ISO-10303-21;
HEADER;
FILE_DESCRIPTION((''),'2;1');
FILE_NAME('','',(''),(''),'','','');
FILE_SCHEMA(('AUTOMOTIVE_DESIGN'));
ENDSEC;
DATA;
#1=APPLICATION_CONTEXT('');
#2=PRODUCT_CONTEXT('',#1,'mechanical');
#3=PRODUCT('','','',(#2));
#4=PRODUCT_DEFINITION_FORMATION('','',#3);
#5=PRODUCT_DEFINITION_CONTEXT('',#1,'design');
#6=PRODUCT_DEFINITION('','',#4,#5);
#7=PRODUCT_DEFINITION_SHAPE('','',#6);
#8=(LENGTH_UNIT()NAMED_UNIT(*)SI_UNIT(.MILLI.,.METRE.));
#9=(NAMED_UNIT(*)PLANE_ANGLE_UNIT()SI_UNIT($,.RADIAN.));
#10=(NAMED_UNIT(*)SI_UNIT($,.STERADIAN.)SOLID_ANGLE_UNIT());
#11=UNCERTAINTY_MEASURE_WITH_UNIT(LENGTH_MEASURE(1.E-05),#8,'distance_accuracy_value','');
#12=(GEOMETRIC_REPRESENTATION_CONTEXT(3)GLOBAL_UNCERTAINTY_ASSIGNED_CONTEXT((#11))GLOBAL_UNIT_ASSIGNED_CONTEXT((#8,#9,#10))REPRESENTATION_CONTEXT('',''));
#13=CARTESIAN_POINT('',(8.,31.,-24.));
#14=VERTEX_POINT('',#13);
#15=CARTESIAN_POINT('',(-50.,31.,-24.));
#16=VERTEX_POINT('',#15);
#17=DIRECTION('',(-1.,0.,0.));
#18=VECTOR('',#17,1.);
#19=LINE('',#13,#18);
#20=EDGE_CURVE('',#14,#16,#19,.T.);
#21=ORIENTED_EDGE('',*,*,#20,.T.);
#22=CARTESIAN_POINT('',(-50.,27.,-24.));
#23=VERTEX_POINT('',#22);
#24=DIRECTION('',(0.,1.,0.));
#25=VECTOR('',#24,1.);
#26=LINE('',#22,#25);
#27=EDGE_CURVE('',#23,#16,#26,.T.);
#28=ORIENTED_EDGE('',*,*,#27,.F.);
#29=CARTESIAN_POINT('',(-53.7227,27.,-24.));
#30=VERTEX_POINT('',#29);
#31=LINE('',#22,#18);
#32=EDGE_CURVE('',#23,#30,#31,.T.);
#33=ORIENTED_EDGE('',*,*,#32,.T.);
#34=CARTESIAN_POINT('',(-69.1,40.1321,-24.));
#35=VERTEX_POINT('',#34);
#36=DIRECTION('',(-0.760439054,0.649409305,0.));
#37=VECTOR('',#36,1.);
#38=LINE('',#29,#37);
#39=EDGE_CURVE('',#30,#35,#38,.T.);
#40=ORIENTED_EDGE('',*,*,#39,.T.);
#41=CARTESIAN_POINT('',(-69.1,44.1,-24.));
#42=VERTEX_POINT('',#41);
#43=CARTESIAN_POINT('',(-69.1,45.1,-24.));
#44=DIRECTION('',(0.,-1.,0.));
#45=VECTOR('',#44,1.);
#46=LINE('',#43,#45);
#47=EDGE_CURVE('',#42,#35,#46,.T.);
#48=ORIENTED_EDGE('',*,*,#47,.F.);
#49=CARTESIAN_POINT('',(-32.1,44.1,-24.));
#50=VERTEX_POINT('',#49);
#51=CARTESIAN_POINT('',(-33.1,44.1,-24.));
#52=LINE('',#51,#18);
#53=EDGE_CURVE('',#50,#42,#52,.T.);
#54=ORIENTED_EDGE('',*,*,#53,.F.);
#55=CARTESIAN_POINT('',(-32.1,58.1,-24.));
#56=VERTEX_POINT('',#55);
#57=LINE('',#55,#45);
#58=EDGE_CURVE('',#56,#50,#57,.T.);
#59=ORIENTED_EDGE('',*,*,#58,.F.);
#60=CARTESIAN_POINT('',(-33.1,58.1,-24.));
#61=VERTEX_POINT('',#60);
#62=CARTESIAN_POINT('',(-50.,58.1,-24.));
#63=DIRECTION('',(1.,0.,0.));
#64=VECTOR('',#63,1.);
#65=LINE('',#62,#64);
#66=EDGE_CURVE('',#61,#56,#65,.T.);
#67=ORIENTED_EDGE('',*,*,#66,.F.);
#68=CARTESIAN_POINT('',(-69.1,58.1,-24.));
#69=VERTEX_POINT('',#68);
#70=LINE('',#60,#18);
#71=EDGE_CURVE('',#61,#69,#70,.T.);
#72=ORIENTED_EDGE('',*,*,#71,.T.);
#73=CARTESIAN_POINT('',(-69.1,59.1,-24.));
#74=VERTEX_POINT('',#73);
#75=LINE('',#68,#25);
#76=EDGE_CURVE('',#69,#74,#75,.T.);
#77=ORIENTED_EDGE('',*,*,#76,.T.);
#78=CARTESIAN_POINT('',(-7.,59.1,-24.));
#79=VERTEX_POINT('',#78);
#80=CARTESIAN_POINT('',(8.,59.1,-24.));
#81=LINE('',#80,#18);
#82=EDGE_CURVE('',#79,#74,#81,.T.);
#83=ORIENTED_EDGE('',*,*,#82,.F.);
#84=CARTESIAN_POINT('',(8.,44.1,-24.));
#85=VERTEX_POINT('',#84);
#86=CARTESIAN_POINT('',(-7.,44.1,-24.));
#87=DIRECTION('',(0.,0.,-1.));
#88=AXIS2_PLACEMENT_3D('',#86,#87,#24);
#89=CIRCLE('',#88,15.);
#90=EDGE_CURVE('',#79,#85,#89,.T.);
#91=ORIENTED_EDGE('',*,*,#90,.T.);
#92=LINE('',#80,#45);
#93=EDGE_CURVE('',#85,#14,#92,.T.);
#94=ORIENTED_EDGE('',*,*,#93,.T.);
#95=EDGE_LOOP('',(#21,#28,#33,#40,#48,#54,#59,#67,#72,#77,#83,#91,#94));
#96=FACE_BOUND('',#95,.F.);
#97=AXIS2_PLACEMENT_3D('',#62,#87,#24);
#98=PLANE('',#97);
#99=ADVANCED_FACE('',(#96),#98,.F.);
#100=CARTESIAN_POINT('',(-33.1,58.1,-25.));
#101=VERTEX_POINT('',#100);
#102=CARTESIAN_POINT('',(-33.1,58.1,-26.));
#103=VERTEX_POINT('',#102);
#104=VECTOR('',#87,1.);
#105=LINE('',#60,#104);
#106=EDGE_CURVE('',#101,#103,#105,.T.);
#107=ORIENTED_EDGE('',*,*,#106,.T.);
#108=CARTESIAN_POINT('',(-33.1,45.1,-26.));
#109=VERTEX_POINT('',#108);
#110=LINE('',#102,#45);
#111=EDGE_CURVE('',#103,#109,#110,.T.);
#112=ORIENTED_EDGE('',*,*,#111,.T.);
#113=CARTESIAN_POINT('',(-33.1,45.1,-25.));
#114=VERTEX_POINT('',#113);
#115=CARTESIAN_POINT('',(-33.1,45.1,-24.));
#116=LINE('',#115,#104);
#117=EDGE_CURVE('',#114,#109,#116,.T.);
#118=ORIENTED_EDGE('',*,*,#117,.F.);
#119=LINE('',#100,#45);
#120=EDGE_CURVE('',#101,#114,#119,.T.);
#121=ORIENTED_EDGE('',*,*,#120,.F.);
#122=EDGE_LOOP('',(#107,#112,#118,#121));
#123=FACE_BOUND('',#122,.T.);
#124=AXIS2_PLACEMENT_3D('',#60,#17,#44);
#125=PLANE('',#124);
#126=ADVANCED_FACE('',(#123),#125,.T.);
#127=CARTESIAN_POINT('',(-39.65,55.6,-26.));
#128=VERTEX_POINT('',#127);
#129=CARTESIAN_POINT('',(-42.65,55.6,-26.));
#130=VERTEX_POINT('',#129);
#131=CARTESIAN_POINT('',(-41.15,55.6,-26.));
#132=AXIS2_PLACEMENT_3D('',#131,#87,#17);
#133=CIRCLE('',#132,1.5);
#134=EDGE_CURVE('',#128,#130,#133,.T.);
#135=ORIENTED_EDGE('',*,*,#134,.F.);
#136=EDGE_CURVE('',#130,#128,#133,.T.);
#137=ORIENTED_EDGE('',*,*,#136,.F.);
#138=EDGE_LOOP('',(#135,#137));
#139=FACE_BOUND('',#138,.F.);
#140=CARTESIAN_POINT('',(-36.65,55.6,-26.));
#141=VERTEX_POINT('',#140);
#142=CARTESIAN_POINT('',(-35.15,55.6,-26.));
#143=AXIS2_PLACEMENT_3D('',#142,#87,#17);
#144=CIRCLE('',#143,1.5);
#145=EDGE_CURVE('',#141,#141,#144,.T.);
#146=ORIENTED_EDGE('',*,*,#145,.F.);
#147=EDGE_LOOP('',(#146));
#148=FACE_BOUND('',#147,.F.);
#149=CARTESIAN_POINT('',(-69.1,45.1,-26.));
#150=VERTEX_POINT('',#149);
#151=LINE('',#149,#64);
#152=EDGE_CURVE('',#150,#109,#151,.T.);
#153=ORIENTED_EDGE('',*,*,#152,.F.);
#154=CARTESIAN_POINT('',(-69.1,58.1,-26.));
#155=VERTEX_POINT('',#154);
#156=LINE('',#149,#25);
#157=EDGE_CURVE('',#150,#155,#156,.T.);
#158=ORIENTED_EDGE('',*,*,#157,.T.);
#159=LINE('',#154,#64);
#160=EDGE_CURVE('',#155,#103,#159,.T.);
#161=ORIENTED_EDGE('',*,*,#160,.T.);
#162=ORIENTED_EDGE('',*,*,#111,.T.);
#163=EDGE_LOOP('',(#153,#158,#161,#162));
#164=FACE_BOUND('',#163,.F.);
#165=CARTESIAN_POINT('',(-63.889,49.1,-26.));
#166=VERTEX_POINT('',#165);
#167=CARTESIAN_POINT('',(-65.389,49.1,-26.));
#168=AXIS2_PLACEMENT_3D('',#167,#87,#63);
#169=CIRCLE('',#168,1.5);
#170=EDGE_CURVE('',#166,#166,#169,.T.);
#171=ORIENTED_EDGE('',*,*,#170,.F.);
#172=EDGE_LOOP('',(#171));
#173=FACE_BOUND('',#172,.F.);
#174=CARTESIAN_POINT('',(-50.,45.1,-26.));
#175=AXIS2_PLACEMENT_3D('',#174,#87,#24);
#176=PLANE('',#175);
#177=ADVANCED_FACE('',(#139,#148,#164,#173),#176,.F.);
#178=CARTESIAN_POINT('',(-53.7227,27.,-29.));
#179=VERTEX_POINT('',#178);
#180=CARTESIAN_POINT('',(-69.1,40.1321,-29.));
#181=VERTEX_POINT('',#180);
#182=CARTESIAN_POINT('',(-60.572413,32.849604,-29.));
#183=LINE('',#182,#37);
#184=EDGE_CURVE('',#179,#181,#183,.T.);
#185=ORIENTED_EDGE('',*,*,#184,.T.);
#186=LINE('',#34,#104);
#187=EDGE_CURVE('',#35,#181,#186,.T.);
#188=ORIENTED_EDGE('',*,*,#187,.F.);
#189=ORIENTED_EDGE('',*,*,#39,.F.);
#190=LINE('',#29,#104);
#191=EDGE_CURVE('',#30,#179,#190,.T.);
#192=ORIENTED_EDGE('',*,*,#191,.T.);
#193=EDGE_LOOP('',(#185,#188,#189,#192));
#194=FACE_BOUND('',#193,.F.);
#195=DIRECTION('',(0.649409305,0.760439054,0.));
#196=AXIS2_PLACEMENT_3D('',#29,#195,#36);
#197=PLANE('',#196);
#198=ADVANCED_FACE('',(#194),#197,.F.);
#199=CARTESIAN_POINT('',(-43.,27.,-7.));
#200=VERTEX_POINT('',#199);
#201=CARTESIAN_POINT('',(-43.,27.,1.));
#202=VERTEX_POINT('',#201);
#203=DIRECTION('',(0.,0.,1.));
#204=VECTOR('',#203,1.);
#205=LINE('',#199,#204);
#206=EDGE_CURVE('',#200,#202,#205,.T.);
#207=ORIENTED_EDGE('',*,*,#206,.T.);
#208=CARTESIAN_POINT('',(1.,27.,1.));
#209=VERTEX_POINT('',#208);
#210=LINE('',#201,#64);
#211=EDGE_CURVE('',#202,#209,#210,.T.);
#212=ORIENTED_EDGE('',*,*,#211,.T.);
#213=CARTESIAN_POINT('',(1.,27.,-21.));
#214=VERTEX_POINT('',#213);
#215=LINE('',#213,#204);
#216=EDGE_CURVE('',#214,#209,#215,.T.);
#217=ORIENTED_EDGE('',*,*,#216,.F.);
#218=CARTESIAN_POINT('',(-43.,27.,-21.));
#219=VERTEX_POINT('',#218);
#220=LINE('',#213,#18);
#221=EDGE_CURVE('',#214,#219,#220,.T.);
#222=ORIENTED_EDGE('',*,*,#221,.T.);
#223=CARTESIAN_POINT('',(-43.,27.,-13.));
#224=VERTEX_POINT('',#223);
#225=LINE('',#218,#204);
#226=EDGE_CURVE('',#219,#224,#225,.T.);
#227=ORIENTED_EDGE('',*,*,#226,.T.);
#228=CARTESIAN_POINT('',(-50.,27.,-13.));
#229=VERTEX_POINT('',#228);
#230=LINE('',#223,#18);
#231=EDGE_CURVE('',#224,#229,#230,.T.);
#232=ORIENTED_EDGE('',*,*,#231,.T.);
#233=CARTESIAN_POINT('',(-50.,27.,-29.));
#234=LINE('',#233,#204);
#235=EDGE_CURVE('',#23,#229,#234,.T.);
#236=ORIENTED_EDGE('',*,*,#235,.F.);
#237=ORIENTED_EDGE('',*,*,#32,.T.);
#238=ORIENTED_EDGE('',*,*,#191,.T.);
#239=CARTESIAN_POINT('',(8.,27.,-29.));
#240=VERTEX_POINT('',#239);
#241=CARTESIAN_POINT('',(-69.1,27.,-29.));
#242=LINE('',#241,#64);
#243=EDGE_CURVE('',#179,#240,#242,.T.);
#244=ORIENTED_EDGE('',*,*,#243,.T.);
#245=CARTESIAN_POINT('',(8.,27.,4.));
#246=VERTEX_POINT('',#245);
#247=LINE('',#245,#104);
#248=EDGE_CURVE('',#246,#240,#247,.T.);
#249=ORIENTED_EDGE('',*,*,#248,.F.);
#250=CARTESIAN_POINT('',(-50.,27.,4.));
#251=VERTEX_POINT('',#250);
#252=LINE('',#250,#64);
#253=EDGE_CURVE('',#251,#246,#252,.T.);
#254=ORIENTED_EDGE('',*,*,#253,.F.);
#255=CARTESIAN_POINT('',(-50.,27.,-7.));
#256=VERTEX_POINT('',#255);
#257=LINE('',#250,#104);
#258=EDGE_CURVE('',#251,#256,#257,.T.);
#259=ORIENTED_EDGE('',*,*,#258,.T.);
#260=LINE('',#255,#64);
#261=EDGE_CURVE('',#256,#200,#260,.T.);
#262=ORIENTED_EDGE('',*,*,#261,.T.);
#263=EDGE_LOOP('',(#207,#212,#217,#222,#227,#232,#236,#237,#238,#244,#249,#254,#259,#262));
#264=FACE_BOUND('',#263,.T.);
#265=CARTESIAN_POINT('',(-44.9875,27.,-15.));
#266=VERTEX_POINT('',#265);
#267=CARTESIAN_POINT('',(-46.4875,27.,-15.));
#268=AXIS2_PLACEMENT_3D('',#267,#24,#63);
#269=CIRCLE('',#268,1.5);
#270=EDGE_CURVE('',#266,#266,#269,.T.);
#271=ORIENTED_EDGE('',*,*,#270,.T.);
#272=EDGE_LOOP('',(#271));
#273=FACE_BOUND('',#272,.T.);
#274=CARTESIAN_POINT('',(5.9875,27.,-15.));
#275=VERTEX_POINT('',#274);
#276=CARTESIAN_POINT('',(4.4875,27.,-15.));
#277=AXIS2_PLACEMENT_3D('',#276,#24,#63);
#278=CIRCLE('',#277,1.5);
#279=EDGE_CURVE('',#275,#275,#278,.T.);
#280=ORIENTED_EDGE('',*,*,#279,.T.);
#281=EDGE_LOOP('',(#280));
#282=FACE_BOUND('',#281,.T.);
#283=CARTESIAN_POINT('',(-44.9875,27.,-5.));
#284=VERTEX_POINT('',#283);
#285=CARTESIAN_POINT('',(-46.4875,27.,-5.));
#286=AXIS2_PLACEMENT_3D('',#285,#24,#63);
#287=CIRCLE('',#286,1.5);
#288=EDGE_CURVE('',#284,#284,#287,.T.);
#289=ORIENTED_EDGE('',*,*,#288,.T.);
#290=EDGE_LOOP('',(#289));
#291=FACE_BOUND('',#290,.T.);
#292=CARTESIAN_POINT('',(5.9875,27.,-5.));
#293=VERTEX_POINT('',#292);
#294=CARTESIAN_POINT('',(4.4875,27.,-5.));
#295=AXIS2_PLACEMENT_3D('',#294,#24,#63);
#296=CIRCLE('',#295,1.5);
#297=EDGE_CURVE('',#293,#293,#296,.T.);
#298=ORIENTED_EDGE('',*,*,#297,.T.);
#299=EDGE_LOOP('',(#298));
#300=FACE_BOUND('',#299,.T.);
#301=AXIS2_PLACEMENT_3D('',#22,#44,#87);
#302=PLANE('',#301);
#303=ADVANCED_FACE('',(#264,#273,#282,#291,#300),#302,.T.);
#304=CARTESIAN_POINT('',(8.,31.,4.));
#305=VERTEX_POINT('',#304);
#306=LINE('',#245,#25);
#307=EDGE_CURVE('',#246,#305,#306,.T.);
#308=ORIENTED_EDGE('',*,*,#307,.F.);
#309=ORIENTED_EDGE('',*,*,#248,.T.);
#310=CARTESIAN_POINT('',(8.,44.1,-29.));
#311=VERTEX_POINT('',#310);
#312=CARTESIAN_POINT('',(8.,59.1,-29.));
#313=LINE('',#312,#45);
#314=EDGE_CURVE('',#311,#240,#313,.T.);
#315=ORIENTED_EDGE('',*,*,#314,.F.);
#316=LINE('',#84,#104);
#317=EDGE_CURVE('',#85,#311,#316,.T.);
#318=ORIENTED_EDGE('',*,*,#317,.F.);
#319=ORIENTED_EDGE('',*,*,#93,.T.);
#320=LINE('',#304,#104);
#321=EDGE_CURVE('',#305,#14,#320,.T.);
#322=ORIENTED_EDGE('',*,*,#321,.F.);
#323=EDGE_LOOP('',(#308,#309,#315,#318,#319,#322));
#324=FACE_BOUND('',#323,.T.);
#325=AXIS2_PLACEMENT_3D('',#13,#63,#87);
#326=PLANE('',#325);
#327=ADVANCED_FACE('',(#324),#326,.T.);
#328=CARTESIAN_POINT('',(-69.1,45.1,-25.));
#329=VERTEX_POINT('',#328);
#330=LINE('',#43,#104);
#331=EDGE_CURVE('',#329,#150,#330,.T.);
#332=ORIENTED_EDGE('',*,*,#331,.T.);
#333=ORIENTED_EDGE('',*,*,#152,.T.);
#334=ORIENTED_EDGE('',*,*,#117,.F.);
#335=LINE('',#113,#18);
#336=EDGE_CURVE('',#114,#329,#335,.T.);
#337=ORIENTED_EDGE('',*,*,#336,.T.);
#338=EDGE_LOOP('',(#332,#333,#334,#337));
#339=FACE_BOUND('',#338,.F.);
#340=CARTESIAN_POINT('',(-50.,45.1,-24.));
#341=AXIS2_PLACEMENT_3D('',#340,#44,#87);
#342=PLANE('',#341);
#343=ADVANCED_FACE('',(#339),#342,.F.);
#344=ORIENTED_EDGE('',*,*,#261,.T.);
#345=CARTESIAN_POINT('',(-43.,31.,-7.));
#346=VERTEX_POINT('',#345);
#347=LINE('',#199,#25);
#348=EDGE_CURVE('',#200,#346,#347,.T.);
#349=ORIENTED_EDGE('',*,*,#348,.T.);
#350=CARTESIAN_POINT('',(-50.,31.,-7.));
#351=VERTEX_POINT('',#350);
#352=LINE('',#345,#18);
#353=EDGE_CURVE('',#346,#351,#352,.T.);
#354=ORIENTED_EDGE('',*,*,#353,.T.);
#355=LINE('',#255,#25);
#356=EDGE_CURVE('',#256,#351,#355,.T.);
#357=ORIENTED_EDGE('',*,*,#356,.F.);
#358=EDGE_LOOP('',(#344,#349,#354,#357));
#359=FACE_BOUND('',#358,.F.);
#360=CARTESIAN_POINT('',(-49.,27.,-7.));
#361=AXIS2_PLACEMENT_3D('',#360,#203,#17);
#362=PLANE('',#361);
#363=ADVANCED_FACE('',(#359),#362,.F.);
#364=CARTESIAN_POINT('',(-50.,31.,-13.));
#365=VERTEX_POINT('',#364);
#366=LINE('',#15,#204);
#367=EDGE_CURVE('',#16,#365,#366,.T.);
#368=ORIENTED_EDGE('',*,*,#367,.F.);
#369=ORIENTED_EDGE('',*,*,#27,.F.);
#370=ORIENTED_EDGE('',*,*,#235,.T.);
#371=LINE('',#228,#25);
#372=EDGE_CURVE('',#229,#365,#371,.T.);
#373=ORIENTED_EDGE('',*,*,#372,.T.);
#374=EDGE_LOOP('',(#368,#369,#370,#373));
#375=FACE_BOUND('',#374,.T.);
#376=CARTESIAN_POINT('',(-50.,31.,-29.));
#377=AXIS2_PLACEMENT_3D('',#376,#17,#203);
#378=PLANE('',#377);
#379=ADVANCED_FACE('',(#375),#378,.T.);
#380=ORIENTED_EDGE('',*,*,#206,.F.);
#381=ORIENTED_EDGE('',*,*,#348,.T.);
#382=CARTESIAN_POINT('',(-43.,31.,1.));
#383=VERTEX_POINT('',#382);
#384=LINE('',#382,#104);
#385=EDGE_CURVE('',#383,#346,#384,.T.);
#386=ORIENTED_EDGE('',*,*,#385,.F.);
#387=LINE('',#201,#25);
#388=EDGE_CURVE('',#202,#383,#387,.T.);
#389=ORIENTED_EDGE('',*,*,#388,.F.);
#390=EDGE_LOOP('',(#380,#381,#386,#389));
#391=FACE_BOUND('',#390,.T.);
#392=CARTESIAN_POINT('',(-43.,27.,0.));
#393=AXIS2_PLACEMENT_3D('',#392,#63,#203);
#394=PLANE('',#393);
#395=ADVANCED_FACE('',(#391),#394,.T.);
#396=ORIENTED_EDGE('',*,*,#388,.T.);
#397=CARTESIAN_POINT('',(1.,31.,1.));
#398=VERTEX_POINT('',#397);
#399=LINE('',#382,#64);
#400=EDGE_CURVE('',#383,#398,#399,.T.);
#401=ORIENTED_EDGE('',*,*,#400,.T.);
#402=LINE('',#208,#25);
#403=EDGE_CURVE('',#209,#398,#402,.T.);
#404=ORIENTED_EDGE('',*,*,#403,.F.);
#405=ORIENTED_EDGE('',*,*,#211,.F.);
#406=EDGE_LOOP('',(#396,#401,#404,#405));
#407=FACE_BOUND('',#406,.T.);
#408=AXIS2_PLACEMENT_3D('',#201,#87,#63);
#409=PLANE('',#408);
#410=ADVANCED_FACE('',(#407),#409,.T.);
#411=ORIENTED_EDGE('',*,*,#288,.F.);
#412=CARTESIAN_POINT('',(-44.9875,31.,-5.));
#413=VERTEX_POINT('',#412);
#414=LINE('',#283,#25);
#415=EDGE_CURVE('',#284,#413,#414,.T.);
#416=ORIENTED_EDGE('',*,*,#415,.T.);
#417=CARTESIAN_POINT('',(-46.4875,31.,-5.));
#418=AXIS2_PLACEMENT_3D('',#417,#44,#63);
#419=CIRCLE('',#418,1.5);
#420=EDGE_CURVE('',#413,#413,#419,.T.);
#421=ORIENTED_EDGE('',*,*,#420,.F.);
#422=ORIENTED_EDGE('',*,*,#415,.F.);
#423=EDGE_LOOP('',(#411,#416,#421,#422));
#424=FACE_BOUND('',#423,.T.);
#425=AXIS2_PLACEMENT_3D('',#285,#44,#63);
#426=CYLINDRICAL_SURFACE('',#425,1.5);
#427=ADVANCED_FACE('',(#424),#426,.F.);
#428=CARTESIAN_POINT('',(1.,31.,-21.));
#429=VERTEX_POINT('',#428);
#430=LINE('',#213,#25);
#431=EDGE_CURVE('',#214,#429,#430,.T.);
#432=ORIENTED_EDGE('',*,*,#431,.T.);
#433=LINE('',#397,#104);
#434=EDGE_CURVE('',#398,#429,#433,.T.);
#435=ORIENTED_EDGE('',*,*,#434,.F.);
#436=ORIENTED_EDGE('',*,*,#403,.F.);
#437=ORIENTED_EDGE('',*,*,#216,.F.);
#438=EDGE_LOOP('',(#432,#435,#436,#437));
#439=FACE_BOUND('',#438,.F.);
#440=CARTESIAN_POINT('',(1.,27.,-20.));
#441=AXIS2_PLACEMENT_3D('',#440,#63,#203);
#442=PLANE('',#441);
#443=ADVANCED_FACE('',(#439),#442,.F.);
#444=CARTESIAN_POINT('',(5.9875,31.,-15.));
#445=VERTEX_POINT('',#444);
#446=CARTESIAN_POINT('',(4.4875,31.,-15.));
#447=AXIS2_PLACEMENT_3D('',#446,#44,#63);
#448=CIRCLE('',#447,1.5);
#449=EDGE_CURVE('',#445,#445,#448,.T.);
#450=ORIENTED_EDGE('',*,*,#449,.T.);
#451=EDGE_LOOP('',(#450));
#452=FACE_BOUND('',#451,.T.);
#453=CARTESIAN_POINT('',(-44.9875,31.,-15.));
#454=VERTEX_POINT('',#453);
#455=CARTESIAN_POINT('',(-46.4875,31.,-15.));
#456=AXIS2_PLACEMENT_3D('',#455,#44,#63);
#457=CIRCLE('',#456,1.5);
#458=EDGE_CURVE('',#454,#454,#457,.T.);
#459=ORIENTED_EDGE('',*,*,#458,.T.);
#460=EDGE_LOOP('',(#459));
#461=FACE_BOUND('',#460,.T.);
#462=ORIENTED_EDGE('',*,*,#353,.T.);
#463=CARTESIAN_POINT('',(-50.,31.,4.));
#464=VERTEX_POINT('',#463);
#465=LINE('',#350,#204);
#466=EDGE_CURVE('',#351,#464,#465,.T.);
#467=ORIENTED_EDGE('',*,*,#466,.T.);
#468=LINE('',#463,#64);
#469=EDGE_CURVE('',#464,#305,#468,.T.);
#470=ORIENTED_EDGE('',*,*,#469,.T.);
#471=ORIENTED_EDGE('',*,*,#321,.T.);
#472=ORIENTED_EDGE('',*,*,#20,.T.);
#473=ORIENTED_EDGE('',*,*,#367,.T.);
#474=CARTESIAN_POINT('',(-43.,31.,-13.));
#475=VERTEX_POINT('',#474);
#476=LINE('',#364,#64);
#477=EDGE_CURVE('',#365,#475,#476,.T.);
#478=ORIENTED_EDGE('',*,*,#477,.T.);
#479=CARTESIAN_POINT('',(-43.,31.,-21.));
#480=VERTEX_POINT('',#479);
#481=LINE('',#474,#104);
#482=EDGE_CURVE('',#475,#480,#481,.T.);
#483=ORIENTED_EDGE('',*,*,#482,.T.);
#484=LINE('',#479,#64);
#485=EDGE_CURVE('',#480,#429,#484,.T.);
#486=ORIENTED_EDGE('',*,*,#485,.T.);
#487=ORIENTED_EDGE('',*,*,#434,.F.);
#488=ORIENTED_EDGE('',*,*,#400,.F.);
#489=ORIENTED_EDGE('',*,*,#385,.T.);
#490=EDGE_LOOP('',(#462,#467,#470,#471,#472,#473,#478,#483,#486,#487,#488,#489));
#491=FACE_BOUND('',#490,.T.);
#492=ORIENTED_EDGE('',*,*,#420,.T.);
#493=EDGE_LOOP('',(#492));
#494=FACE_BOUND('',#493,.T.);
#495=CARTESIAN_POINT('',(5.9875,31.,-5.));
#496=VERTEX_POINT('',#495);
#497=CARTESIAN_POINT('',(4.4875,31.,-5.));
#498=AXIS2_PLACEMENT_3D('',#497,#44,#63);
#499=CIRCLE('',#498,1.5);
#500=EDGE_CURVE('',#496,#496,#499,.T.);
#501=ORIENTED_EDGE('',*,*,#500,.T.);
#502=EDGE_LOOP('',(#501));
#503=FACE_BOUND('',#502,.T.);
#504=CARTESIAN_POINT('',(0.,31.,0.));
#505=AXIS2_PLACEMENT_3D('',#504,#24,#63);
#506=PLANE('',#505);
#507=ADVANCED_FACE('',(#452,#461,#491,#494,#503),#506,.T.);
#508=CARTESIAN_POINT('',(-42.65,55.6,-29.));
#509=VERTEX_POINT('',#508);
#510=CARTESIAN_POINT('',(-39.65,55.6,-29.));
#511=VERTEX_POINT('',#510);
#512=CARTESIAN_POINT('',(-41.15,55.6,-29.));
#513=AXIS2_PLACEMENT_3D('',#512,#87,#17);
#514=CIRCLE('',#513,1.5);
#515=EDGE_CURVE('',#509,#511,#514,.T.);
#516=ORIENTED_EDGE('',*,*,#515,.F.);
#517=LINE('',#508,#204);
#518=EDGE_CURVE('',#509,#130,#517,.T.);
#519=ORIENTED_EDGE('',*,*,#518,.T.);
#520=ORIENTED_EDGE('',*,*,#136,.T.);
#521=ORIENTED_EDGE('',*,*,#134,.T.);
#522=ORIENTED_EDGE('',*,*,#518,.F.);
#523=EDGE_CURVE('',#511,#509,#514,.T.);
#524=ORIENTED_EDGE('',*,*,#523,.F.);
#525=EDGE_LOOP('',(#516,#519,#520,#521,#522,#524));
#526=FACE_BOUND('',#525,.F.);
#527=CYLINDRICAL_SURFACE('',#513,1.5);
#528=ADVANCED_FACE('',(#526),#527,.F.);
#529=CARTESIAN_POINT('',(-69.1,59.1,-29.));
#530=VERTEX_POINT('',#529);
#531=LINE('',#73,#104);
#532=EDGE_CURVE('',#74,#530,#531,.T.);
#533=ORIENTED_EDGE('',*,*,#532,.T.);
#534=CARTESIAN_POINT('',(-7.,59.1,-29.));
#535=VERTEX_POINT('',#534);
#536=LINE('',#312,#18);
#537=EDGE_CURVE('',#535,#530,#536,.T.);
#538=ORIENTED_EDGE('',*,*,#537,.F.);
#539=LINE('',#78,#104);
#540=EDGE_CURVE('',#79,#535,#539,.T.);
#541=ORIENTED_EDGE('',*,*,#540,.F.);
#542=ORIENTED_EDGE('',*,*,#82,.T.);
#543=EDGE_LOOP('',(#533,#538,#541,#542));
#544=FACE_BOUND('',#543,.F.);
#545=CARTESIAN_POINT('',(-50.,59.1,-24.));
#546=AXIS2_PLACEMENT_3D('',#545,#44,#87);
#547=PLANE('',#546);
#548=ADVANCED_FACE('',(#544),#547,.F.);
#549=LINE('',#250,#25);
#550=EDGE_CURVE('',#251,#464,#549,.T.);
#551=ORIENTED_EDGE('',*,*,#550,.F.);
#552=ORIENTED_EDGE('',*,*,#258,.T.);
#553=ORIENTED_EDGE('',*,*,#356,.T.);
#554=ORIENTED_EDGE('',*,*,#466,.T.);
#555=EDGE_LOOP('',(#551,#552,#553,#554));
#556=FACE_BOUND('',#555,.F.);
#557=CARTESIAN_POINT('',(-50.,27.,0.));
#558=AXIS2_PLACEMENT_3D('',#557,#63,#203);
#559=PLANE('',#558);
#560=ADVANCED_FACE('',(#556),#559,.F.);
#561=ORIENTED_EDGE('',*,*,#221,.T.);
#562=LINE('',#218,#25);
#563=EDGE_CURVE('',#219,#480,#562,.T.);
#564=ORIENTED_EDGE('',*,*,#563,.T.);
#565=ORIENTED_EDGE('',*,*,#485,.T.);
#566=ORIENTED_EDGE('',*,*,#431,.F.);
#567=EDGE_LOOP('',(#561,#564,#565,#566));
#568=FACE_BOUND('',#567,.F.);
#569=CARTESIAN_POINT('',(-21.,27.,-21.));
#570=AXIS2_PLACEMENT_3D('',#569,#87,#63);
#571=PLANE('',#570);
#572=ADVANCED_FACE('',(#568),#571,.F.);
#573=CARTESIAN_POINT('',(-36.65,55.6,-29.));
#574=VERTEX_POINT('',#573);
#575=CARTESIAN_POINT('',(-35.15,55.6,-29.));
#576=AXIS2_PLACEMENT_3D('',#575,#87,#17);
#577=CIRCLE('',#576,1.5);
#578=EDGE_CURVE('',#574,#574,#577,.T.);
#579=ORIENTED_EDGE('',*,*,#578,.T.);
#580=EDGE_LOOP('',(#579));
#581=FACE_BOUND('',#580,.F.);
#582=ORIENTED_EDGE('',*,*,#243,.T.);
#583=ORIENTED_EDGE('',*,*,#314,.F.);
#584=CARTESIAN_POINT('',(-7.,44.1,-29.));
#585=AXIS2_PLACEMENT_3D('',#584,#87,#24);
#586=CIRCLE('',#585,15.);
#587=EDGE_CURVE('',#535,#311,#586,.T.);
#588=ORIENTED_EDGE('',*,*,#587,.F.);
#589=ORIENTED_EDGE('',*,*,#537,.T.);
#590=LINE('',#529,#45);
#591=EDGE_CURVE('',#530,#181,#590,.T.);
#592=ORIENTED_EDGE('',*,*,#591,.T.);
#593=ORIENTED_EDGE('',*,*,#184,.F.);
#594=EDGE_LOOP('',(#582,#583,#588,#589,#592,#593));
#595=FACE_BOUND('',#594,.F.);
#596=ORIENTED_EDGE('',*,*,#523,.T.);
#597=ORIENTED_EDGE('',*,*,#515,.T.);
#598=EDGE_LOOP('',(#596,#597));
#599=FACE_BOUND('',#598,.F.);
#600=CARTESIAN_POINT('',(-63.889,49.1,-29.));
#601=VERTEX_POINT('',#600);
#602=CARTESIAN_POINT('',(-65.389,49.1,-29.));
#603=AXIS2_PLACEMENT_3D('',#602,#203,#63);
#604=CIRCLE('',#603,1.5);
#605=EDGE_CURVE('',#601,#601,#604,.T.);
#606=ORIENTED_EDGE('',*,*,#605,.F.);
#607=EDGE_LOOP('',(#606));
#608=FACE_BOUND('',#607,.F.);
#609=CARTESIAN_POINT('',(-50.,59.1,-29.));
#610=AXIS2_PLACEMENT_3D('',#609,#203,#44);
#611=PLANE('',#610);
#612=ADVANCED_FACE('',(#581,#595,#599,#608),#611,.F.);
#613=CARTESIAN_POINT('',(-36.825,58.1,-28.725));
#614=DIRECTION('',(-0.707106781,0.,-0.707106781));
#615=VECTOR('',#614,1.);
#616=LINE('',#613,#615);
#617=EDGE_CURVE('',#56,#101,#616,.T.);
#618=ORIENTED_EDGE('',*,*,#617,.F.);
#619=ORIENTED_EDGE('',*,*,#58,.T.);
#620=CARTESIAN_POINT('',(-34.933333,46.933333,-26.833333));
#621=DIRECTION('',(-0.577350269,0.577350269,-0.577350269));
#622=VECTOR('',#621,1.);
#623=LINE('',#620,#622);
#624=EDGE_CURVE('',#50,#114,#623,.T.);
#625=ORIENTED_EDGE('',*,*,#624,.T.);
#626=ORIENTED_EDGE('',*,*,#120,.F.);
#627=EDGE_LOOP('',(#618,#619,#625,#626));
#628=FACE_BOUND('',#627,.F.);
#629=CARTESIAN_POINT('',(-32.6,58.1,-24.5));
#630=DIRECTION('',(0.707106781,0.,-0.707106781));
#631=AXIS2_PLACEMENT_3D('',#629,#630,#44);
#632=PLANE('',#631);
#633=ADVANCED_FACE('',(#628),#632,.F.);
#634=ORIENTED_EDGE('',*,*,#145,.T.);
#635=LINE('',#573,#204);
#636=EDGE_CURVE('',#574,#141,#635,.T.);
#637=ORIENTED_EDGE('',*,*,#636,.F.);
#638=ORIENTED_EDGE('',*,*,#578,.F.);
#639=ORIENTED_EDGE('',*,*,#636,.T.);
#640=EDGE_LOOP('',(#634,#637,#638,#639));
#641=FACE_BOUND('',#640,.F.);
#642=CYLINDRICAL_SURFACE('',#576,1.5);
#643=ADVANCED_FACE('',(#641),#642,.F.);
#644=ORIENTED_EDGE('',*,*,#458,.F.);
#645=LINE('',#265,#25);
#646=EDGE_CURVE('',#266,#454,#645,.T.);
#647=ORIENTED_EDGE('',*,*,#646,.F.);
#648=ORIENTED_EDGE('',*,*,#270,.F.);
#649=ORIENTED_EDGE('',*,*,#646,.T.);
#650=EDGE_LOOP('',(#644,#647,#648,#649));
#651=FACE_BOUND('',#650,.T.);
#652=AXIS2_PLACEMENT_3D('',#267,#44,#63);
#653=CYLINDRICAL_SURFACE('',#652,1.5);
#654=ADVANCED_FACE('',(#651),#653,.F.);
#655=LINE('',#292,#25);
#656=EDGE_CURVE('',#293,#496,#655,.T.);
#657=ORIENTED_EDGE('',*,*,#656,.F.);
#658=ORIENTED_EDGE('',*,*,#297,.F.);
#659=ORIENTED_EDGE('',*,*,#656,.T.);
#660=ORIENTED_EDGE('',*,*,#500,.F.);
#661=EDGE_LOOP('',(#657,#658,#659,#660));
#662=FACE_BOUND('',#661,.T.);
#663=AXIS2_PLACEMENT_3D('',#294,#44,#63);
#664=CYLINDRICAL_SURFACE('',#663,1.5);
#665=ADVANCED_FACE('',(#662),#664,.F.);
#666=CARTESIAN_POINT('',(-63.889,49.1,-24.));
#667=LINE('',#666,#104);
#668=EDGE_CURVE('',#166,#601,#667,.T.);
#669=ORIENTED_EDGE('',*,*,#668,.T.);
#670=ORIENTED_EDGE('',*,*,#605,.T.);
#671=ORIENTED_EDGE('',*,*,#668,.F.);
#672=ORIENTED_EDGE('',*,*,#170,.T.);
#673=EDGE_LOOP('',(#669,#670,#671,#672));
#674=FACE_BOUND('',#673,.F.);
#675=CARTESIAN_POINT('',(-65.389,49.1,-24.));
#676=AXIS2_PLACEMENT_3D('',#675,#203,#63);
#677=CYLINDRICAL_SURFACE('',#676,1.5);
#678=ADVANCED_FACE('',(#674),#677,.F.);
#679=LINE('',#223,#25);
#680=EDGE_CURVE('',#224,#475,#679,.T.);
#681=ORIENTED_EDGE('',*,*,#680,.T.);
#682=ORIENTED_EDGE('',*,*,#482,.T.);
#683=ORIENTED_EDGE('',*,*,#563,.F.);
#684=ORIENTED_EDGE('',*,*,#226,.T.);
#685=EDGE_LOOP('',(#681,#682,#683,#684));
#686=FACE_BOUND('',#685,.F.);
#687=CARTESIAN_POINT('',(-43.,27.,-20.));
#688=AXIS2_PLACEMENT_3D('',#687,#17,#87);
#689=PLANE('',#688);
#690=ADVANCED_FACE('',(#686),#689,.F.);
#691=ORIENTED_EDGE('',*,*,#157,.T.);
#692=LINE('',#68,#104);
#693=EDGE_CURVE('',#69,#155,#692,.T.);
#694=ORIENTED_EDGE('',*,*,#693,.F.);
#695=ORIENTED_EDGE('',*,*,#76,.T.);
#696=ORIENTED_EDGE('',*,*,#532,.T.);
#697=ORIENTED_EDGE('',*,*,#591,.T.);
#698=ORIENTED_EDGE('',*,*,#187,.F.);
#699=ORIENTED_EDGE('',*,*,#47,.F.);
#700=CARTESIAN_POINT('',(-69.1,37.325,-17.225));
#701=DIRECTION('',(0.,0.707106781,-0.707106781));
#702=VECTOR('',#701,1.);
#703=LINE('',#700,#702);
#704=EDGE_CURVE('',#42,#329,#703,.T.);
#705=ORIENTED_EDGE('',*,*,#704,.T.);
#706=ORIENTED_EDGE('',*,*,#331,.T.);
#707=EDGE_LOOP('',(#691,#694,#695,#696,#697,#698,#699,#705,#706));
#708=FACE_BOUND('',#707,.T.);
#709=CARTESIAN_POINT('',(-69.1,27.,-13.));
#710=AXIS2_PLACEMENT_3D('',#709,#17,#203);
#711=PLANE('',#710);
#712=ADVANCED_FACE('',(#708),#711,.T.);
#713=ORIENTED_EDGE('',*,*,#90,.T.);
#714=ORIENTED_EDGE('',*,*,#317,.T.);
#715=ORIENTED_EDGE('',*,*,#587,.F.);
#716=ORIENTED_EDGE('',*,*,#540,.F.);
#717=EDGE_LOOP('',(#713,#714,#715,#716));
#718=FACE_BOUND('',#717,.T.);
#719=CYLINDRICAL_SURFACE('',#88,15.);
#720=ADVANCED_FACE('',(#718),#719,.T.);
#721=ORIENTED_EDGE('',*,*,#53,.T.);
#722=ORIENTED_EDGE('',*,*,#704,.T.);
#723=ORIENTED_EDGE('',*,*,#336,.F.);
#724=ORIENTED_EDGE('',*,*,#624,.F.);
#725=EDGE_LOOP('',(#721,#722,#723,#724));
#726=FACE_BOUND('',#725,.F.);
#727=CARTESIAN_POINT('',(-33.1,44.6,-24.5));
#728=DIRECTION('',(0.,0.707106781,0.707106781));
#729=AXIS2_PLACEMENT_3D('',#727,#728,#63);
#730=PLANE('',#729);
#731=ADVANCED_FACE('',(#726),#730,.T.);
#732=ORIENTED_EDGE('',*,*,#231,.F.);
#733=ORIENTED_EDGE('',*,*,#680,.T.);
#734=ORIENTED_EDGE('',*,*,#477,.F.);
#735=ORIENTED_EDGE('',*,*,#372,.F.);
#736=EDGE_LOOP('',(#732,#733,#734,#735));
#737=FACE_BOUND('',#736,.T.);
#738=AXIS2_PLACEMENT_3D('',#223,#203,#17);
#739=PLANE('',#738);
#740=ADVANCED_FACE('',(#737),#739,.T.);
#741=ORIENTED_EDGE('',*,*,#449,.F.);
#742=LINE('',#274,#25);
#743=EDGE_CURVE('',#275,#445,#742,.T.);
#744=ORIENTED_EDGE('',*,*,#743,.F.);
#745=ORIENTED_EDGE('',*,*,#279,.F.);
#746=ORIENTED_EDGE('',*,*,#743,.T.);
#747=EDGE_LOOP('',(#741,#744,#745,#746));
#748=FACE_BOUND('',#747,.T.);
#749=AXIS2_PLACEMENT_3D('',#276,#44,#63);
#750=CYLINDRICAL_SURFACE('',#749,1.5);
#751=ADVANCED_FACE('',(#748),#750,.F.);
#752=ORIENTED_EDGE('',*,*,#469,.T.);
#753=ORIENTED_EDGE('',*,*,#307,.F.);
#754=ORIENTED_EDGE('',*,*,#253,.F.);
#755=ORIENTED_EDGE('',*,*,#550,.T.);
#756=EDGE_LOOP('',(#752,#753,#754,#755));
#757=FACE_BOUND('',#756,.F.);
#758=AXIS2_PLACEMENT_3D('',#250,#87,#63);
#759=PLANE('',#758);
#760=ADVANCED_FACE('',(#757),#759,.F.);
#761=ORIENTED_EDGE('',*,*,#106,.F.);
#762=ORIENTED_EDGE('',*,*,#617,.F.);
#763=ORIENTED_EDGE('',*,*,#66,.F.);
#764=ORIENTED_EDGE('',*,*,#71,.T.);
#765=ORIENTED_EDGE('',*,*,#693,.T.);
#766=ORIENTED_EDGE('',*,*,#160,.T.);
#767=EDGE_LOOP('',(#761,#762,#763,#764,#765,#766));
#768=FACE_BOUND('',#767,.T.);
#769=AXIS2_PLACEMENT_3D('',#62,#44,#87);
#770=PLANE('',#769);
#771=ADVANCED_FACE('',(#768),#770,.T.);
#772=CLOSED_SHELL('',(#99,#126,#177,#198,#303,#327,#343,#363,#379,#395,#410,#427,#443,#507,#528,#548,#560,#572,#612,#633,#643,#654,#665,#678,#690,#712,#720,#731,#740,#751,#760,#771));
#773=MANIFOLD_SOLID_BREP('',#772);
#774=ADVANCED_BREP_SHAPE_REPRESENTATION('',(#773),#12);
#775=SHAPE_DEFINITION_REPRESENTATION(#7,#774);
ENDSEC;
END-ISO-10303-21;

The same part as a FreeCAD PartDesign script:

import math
import FreeCAD as App
import Part
import Sketcher

V = App.Vector
Q = App.Units.Quantity


def edges_at(feature, points):
    """Names of the edges that pass closest to the given points."""
    edges = feature.Shape.Edges
    near = lambda p: min(range(len(edges)), key=lambda i: edges[i].distToShape(Part.Vertex(*p))[0])
    return sorted({f"Edge{near(p) + 1}" for p in points})

doc = App.newDocument("Part")
body = doc.addObject("PartDesign::Body", "Body")
body.AllowCompound = True

# Sketch on XZ plane
sketch1 = doc.addObject("Sketcher::SketchObject", "Sketch")
body.addObject(sketch1)
sketch1.AttachmentSupport = (doc.XZ_Plane, [""])
sketch1.MapMode = "FlatFace"
sketch1.AttachmentOffset = App.Placement(V(0, 0, -27), App.Rotation())
sketch1.addGeometry(Part.LineSegment(V(1, 1, 0), V(-43, 1, 0)), False)
sketch1.addGeometry(Part.LineSegment(V(-43, 1, 0), V(-43, -7, 0)), False)
sketch1.addGeometry(Part.LineSegment(V(-43, -7, 0), V(-50, -7, 0)), False)
sketch1.addGeometry(Part.LineSegment(V(-50, -7, 0), V(-50, 4, 0)), False)
sketch1.addGeometry(Part.LineSegment(V(-50, 4, 0), V(8, 4, 0)), False)
sketch1.addGeometry(Part.LineSegment(V(8, 4, 0), V(8, -24, 0)), False)
sketch1.addGeometry(Part.LineSegment(V(8, -24, 0), V(-50, -24, 0)), False)
sketch1.addGeometry(Part.LineSegment(V(-50, -24, 0), V(-50, -13, 0)), False)
sketch1.addGeometry(Part.LineSegment(V(-50, -13, 0), V(-43, -13, 0)), False)
sketch1.addGeometry(Part.LineSegment(V(-43, -13, 0), V(-43, -21, 0)), False)
sketch1.addGeometry(Part.LineSegment(V(-43, -21, 0), V(1, -21, 0)), False)
sketch1.addGeometry(Part.LineSegment(V(1, -21, 0), V(1, 1, 0)), False)
sketch1.addGeometry(Part.Circle(V(4.5, -15, 0), V(0, 0, 1), 1.5), False)
sketch1.addGeometry(Part.Circle(V(4.5, -5, 0), V(0, 0, 1), 1.5), False)
sketch1.addGeometry(Part.Circle(V(-46.5, -15, 0), V(0, 0, 1), 1.5), False)
sketch1.addGeometry(Part.Circle(V(-46.5, -5, 0), V(0, 0, 1), 1.5), False)
sketch1.addConstraint(Sketcher.Constraint("Coincident", 0, 2, 1, 1))
sketch1.addConstraint(Sketcher.Constraint("Coincident", 1, 2, 2, 1))
sketch1.addConstraint(Sketcher.Constraint("Coincident", 2, 2, 3, 1))
sketch1.addConstraint(Sketcher.Constraint("Coincident", 3, 2, 4, 1))
sketch1.addConstraint(Sketcher.Constraint("Coincident", 4, 2, 5, 1))
sketch1.addConstraint(Sketcher.Constraint("Coincident", 5, 2, 6, 1))
sketch1.addConstraint(Sketcher.Constraint("Coincident", 6, 2, 7, 1))
sketch1.addConstraint(Sketcher.Constraint("Coincident", 7, 2, 8, 1))
sketch1.addConstraint(Sketcher.Constraint("Coincident", 8, 2, 9, 1))
sketch1.addConstraint(Sketcher.Constraint("Coincident", 9, 2, 10, 1))
sketch1.addConstraint(Sketcher.Constraint("Coincident", 10, 2, 11, 1))
sketch1.addConstraint(Sketcher.Constraint("Coincident", 11, 2, 0, 1))
sketch1.addConstraint(Sketcher.Constraint("Horizontal", 0))
sketch1.addConstraint(Sketcher.Constraint("Vertical", 1))
sketch1.addConstraint(Sketcher.Constraint("Horizontal", 2))
sketch1.addConstraint(Sketcher.Constraint("Vertical", 3))
sketch1.addConstraint(Sketcher.Constraint("Horizontal", 4))
sketch1.addConstraint(Sketcher.Constraint("Vertical", 5))
sketch1.addConstraint(Sketcher.Constraint("Horizontal", 6))
sketch1.addConstraint(Sketcher.Constraint("Vertical", 7))
sketch1.addConstraint(Sketcher.Constraint("Horizontal", 8))
sketch1.addConstraint(Sketcher.Constraint("Vertical", 9))
sketch1.addConstraint(Sketcher.Constraint("Horizontal", 10))
sketch1.addConstraint(Sketcher.Constraint("Vertical", 11))
sketch1.addConstraint(Sketcher.Constraint("Equal", 12, 13))
sketch1.addConstraint(Sketcher.Constraint("Equal", 13, 14))
sketch1.addConstraint(Sketcher.Constraint("Equal", 14, 15))
sketch1.addConstraint(Sketcher.Constraint("Horizontal", 12, 3, 14, 3))
sketch1.addConstraint(Sketcher.Constraint("Horizontal", 13, 3, 15, 3))
sketch1.addConstraint(Sketcher.Constraint("Vertical", 12, 3, 13, 3))
sketch1.addConstraint(Sketcher.Constraint("Vertical", 14, 3, 15, 3))
sketch1.addConstraint(Sketcher.Constraint("Vertical", 3, 2, 6, 2))
sketch1.addConstraint(Sketcher.Constraint("Vertical", 1, 2, 8, 2))
sketch1.addConstraint(Sketcher.Constraint("Equal", 3, 7))
sketch1.addConstraint(Sketcher.Constraint("Equal", 1, 9))
sketch1.addConstraint(Sketcher.Constraint("Diameter", 12, Q("3 mm")))
sketch1.addConstraint(Sketcher.Constraint("DistanceX", 2, 2, 2, 1, Q("7 mm")))
sketch1.addConstraint(Sketcher.Constraint("DistanceY", 13, 3, -1, 1, Q("5 mm")))
sketch1.addConstraint(Sketcher.Constraint("DistanceY", -1, 1, 0, 2, Q("1 mm")))
sketch1.addConstraint(Sketcher.Constraint("DistanceY", 1, 2, -1, 1, Q("7 mm")))
sketch1.addConstraint(Sketcher.Constraint("DistanceY", -1, 1, 3, 2, Q("4 mm")))
sketch1.addConstraint(Sketcher.Constraint("DistanceX", -1, 1, 10, 2, Q("1 mm")))
sketch1.addConstraint(Sketcher.Constraint("DistanceY", 14, 3, 7, 2, Q("2 mm")))
sketch1.addConstraint(Sketcher.Constraint("DistanceX", 10, 2, 5, 2, Q("7 mm")))
sketch1.addConstraint(Sketcher.Constraint("DistanceX", 0, 2, 0, 1, Q("44 mm")))
sketch1.addConstraint(Sketcher.Constraint("DistanceY", 5, 2, 5, 1, Q("28 mm")))
sketch1.addConstraint(Sketcher.Constraint("DistanceX", 14, 3, 12, 3, Q("50.975 mm")))
sketch1.addConstraint(Sketcher.Constraint("DistanceX", -1, 1, 12, 3, Q("4.4875 mm")))
pad1 = doc.addObject("PartDesign::Pad", "Pad")
body.addObject(pad1)
pad1.Profile = sketch1
pad1.Length = 4
pad1.Reversed = True

# Sketch on XY plane
sketch2 = doc.addObject("Sketcher::SketchObject", "Sketch001")
body.addObject(sketch2)
sketch2.AttachmentSupport = (doc.XY_Plane, [""])
sketch2.MapMode = "FlatFace"
sketch2.AttachmentOffset = App.Placement(V(0, 0, -24), App.Rotation())
sketch2.addGeometry(Part.LineSegment(V(8, 31, 0), V(-50, 31, 0)), False)
sketch2.addGeometry(Part.LineSegment(V(-50, 31, 0), V(-50, 59, 0)), False)
sketch2.addGeometry(Part.LineSegment(V(-50, 59, 0), V(8, 59, 0)), False)
sketch2.addGeometry(Part.LineSegment(V(8, 59, 0), V(8, 31, 0)), False)
sketch2.addGeometry(Part.LineSegment(V(-43, 58, 0), V(-43, 45, 0)), False)
sketch2.addGeometry(Part.LineSegment(V(-43, 45, 0), V(-33, 45, 0)), False)
sketch2.addGeometry(Part.LineSegment(V(-33, 45, 0), V(-33, 58, 0)), False)
sketch2.addGeometry(Part.LineSegment(V(-33, 58, 0), V(-43, 58, 0)), False)
sketch2.addConstraint(Sketcher.Constraint("Coincident", 0, 2, 1, 1))
sketch2.addConstraint(Sketcher.Constraint("Coincident", 1, 2, 2, 1))
sketch2.addConstraint(Sketcher.Constraint("Coincident", 2, 2, 3, 1))
sketch2.addConstraint(Sketcher.Constraint("Coincident", 3, 2, 0, 1))
sketch2.addConstraint(Sketcher.Constraint("Coincident", 4, 2, 5, 1))
sketch2.addConstraint(Sketcher.Constraint("Coincident", 5, 2, 6, 1))
sketch2.addConstraint(Sketcher.Constraint("Coincident", 6, 2, 7, 1))
sketch2.addConstraint(Sketcher.Constraint("Coincident", 7, 2, 4, 1))
sketch2.addConstraint(Sketcher.Constraint("Horizontal", 0))
sketch2.addConstraint(Sketcher.Constraint("Vertical", 1))
sketch2.addConstraint(Sketcher.Constraint("Horizontal", 2))
sketch2.addConstraint(Sketcher.Constraint("Vertical", 3))
sketch2.addConstraint(Sketcher.Constraint("Vertical", 4))
sketch2.addConstraint(Sketcher.Constraint("Horizontal", 5))
sketch2.addConstraint(Sketcher.Constraint("Vertical", 6))
sketch2.addConstraint(Sketcher.Constraint("Horizontal", 7))
sketch2.addConstraint(Sketcher.Constraint("DistanceY", 4, 2, 4, 1, Q("13 mm")))
sketch2.addConstraint(Sketcher.Constraint("DistanceX", 5, 1, 5, 2, Q("10.1 mm")))
sketch2.addConstraint(Sketcher.Constraint("DistanceY", 4, 2, 1, 2, Q("14 mm")))
sketch2.addConstraint(Sketcher.Constraint("DistanceY", 0, 2, 4, 2, Q("14.1 mm")))
sketch2.addConstraint(Sketcher.Constraint("DistanceX", 0, 2, 0, 1, Q("58 mm")))
sketch2.addConstraint(Sketcher.Constraint("DistanceX", 0, 2, -1, 1, Q("50 mm")))
sketch2.addConstraint(Sketcher.Constraint("DistanceY", -1, 1, 0, 2, Q("31 mm")))
sketch2.addConstraint(Sketcher.Constraint("DistanceX", 4, 2, -1, 1, Q("43.2 mm")))
pad2 = doc.addObject("PartDesign::Pad", "Pad001")
body.addObject(pad2)
pad2.Profile = sketch2
pad2.Length = 5
pad2.Reversed = True

# Sketch on XY plane
sketch3 = doc.addObject("Sketcher::SketchObject", "Sketch002")
body.addObject(sketch3)
sketch3.AttachmentSupport = (doc.XY_Plane, [""])
sketch3.MapMode = "FlatFace"
sketch3.AttachmentOffset = App.Placement(V(0, 0, -29), App.Rotation())
sketch3.addGeometry(Part.LineSegment(V(-33.1, 45.1, 0), V(-43.2, 45.1, 0)), False)
sketch3.addGeometry(Part.LineSegment(V(-43.2, 45.1, 0), V(-43.2, 55.6, 0)), False)
sketch3.addGeometry(Part.LineSegment(V(-43.2, 55.6, 0), V(-43.2, 58.1, 0)), False)
sketch3.addGeometry(Part.LineSegment(V(-43.2, 58.1, 0), V(-33.1, 58.1, 0)), False)
sketch3.addGeometry(Part.LineSegment(V(-33.1, 58.1, 0), V(-33.1, 45.1, 0)), False)
sketch3.addGeometry(Part.Circle(V(-35.1, 55.6, 0), V(0, 0, 1), 1.5), False)
sketch3.addGeometry(Part.ArcOfCircle(Part.Circle(V(-41.1, 55.6, 0), V(0, 0, 1), 1.5), math.radians(0), math.radians(180)), False)
sketch3.addGeometry(Part.ArcOfCircle(Part.Circle(V(-41.1, 55.6, 0), V(0, 0, 1), 1.5), math.radians(180), math.radians(360)), False)
sketch3.addConstraint(Sketcher.Constraint("Coincident", 0, 2, 1, 1))
sketch3.addConstraint(Sketcher.Constraint("Coincident", 1, 2, 2, 1))
sketch3.addConstraint(Sketcher.Constraint("Coincident", 2, 2, 3, 1))
sketch3.addConstraint(Sketcher.Constraint("Coincident", 3, 2, 4, 1))
sketch3.addConstraint(Sketcher.Constraint("Coincident", 4, 2, 0, 1))
sketch3.addConstraint(Sketcher.Constraint("Tangent", 6, 1, 7, 2))
sketch3.addConstraint(Sketcher.Constraint("Coincident", 7, 1, 6, 2))
sketch3.addConstraint(Sketcher.Constraint("Horizontal", 0))
sketch3.addConstraint(Sketcher.Constraint("Vertical", 1))
sketch3.addConstraint(Sketcher.Constraint("Vertical", 2))
sketch3.addConstraint(Sketcher.Constraint("Horizontal", 3))
sketch3.addConstraint(Sketcher.Constraint("Vertical", 4))
sketch3.addConstraint(Sketcher.Constraint("Equal", 5, 6))
sketch3.addConstraint(Sketcher.Constraint("Horizontal", 5, 3, 6, 3))
sketch3.addConstraint(Sketcher.Constraint("Horizontal", 7, 3, 1, 2))
sketch3.addConstraint(Sketcher.Constraint("Horizontal", 1, 2, 6, 1))
sketch3.addConstraint(Sketcher.Constraint("Horizontal", 6, 1, 7, 1))
sketch3.addConstraint(Sketcher.Constraint("Diameter", 5, Q("3 mm")))
sketch3.addConstraint(Sketcher.Constraint("DistanceY", 1, 1, 1, 2, Q("10.5 mm")))
sketch3.addConstraint(Sketcher.Constraint("DistanceX", 6, 3, 5, 3, Q("6 mm")))
sketch3.addConstraint(Sketcher.Constraint("DistanceY", 4, 2, 4, 1, Q("13 mm")))
sketch3.addConstraint(Sketcher.Constraint("DistanceX", 0, 2, 6, 3, Q("2.05 mm")))
sketch3.addConstraint(Sketcher.Constraint("DistanceX", 5, 3, 3, 2, Q("2.05 mm")))
sketch3.addConstraint(Sketcher.Constraint("DistanceY", -1, 1, 5, 3, Q("55.6 mm")))
sketch3.addConstraint(Sketcher.Constraint("DistanceX", 0, 2, -1, 1, Q("43.2 mm")))
pad3 = doc.addObject("PartDesign::Pad", "Pad002")
body.addObject(pad3)
pad3.Profile = sketch3
pad3.Length = 3

# Sketch on XZ plane
sketch4 = doc.addObject("Sketcher::SketchObject", "Sketch003")
body.addObject(sketch4)
sketch4.AttachmentSupport = (doc.XZ_Plane, [""])
sketch4.MapMode = "FlatFace"
sketch4.AttachmentOffset = App.Placement(V(0, 0, -31), App.Rotation())
sketch4.addGeometry(Part.LineSegment(V(-50, -29, 0), V(8, -29, 0)), False)
sketch4.addGeometry(Part.LineSegment(V(8, -29, 0), V(8, -24, 0)), False)
sketch4.addGeometry(Part.LineSegment(V(8, -24, 0), V(-50, -24, 0)), False)
sketch4.addGeometry(Part.LineSegment(V(-50, -24, 0), V(-50, -29, 0)), False)
sketch4.addConstraint(Sketcher.Constraint("Coincident", 0, 2, 1, 1))
sketch4.addConstraint(Sketcher.Constraint("Coincident", 1, 2, 2, 1))
sketch4.addConstraint(Sketcher.Constraint("Coincident", 2, 2, 3, 1))
sketch4.addConstraint(Sketcher.Constraint("Coincident", 3, 2, 0, 1))
sketch4.addConstraint(Sketcher.Constraint("Horizontal", 0))
sketch4.addConstraint(Sketcher.Constraint("Vertical", 1))
sketch4.addConstraint(Sketcher.Constraint("Horizontal", 2))
sketch4.addConstraint(Sketcher.Constraint("Vertical", 3))
sketch4.addConstraint(Sketcher.Constraint("DistanceX", 0, 1, 0, 2, Q("58 mm")))
sketch4.addConstraint(Sketcher.Constraint("DistanceY", 1, 1, 1, 2, Q("5 mm")))
sketch4.addConstraint(Sketcher.Constraint("DistanceX", -1, 1, 0, 2, Q("8 mm")))
sketch4.addConstraint(Sketcher.Constraint("DistanceY", 0, 2, -1, 1, Q("29 mm")))
pad4 = doc.addObject("PartDesign::Pad", "Pad003")
body.addObject(pad4)
pad4.Profile = sketch4
pad4.Length = 4

# Sketch on XY plane
sketch5 = doc.addObject("Sketcher::SketchObject", "Sketch004")
body.addObject(sketch5)
sketch5.AttachmentSupport = (doc.XY_Plane, [""])
sketch5.MapMode = "FlatFace"
sketch5.AttachmentOffset = App.Placement(V(0, 0, -24), App.Rotation())
sketch5.addGeometry(Part.LineSegment(V(-43, 45, 0), V(-43, 58, 0)), False)
sketch5.addGeometry(Part.LineSegment(V(-43, 58, 0), V(-64, 58, 0)), False)
sketch5.addGeometry(Part.LineSegment(V(-64, 58, 0), V(-65, 45, 0)), False)
sketch5.addGeometry(Part.LineSegment(V(-65, 45, 0), V(-43, 45, 0)), False)
sketch5.addConstraint(Sketcher.Constraint("Coincident", 0, 2, 1, 1))
sketch5.addConstraint(Sketcher.Constraint("Coincident", 1, 2, 2, 1))
sketch5.addConstraint(Sketcher.Constraint("Coincident", 2, 2, 3, 1))
sketch5.addConstraint(Sketcher.Constraint("Coincident", 3, 2, 0, 1))
sketch5.addConstraint(Sketcher.Constraint("Vertical", 0))
sketch5.addConstraint(Sketcher.Constraint("Horizontal", 1))
sketch5.addConstraint(Sketcher.Constraint("Horizontal", 3))
sketch5.addConstraint(Sketcher.Constraint("DistanceY", 0, 1, 0, 2, Q("13 mm")))
sketch5.addConstraint(Sketcher.Constraint("DistanceX", 0, 2, -1, 1, Q("43.2 mm")))
sketch5.addConstraint(Sketcher.Constraint("DistanceY", -1, 1, 0, 2, Q("58.1 mm")))
sketch5.addConstraint(Sketcher.Constraint("Angle", 2, Q("-92.741 deg")))
sketch5.addConstraint(Sketcher.Constraint("DistanceX", 3, 1, 3, 2, Q("21.663 mm")))
pocket1 = doc.addObject("PartDesign::Pocket", "Pocket")
body.addObject(pocket1)
pocket1.Profile = sketch5
pocket1.Length = 2

# Sketch on YZ plane
sketch6 = doc.addObject("Sketcher::SketchObject", "Sketch005")
body.addObject(sketch6)
sketch6.AttachmentSupport = (doc.YZ_Plane, [""])
sketch6.MapMode = "FlatFace"
sketch6.AttachmentOffset = App.Placement(V(0, 0, -50), App.Rotation())
sketch6.addGeometry(Part.LineSegment(V(58.1, -26, 0), V(58.1, -24, 0)), False)
sketch6.addGeometry(Part.LineSegment(V(58.1, -24, 0), V(59.1, -24, 0)), False)
sketch6.addGeometry(Part.LineSegment(V(59.1, -24, 0), V(59.1, -29, 0)), False)
sketch6.addGeometry(Part.LineSegment(V(59.1, -29, 0), V(27, -29, 0)), False)
sketch6.addGeometry(Part.LineSegment(V(27, -29, 0), V(27, -24, 0)), False)
sketch6.addGeometry(Part.LineSegment(V(27, -24, 0), V(45.1, -24, 0)), False)
sketch6.addGeometry(Part.LineSegment(V(45.1, -24, 0), V(45.1, -26, 0)), False)
sketch6.addGeometry(Part.LineSegment(V(45.1, -26, 0), V(58.1, -26, 0)), False)
sketch6.addConstraint(Sketcher.Constraint("Coincident", 0, 2, 1, 1))
sketch6.addConstraint(Sketcher.Constraint("Coincident", 1, 2, 2, 1))
sketch6.addConstraint(Sketcher.Constraint("Coincident", 2, 2, 3, 1))
sketch6.addConstraint(Sketcher.Constraint("Coincident", 3, 2, 4, 1))
sketch6.addConstraint(Sketcher.Constraint("Coincident", 4, 2, 5, 1))
sketch6.addConstraint(Sketcher.Constraint("Coincident", 5, 2, 6, 1))
sketch6.addConstraint(Sketcher.Constraint("Coincident", 6, 2, 7, 1))
sketch6.addConstraint(Sketcher.Constraint("Coincident", 7, 2, 0, 1))
sketch6.addConstraint(Sketcher.Constraint("Vertical", 0))
sketch6.addConstraint(Sketcher.Constraint("Horizontal", 1))
sketch6.addConstraint(Sketcher.Constraint("Vertical", 2))
sketch6.addConstraint(Sketcher.Constraint("Horizontal", 3))
sketch6.addConstraint(Sketcher.Constraint("Vertical", 4))
sketch6.addConstraint(Sketcher.Constraint("Horizontal", 5))
sketch6.addConstraint(Sketcher.Constraint("Vertical", 6))
sketch6.addConstraint(Sketcher.Constraint("Horizontal", 7))
sketch6.addConstraint(Sketcher.Constraint("Horizontal", 1, 2, 4, 2))
sketch6.addConstraint(Sketcher.Constraint("DistanceX", 1, 1, 1, 2, Q("1 mm")))
sketch6.addConstraint(Sketcher.Constraint("DistanceX", 7, 1, 7, 2, Q("13 mm")))
sketch6.addConstraint(Sketcher.Constraint("DistanceY", 0, 1, 0, 2, Q("2 mm")))
sketch6.addConstraint(Sketcher.Constraint("DistanceY", 2, 2, 2, 1, Q("5 mm")))
sketch6.addConstraint(Sketcher.Constraint("DistanceX", 3, 2, 3, 1, Q("32.1 mm")))
sketch6.addConstraint(Sketcher.Constraint("DistanceY", 0, 2, -1, 1, Q("24 mm")))
sketch6.addConstraint(Sketcher.Constraint("DistanceX", -1, 1, 3, 2, Q("27 mm")))
pad5 = doc.addObject("PartDesign::Pad", "Pad004")
body.addObject(pad5)
pad5.Profile = sketch6
pad5.Length = 19.1
pad5.Reversed = True

# Sketch on XY plane
sketch7 = doc.addObject("Sketcher::SketchObject", "Sketch006")
body.addObject(sketch7)
sketch7.AttachmentSupport = (doc.XY_Plane, [""])
sketch7.MapMode = "FlatFace"
sketch7.AttachmentOffset = App.Placement(V(0, 0, -24), App.Rotation())
sketch7.addGeometry(Part.Circle(V(-65.4, 49.1, 0), V(0, 0, 1), 1.5), False)
sketch7.addConstraint(Sketcher.Constraint("Diameter", 0, Q("3 mm")))
sketch7.addConstraint(Sketcher.Constraint("DistanceY", -1, 1, 0, 3, Q("49.1 mm")))
sketch7.addConstraint(Sketcher.Constraint("DistanceX", 0, 3, -1, 1, Q("65.389 mm")))
pocket2 = doc.addObject("PartDesign::Pocket", "Pocket001")
body.addObject(pocket2)
pocket2.Profile = sketch7
pocket2.Length = 19.1

# Sketch on XY plane
sketch8 = doc.addObject("Sketcher::SketchObject", "Sketch007")
body.addObject(sketch8)
sketch8.AttachmentSupport = (doc.XY_Plane, [""])
sketch8.MapMode = "FlatFace"
sketch8.AttachmentOffset = App.Placement(V(0, 0, -24), App.Rotation())
sketch8.addGeometry(Part.LineSegment(V(-69, 27, 0), V(-54, 27, 0)), False)
sketch8.addGeometry(Part.LineSegment(V(-54, 27, 0), V(-69, 40, 0)), False)
sketch8.addGeometry(Part.LineSegment(V(-69, 40, 0), V(-69, 27, 0)), False)
sketch8.addConstraint(Sketcher.Constraint("Coincident", 0, 2, 1, 1))
sketch8.addConstraint(Sketcher.Constraint("Coincident", 1, 2, 2, 1))
sketch8.addConstraint(Sketcher.Constraint("Coincident", 2, 2, 0, 1))
sketch8.addConstraint(Sketcher.Constraint("Horizontal", 0))
sketch8.addConstraint(Sketcher.Constraint("Vertical", 2))
sketch8.addConstraint(Sketcher.Constraint("DistanceY", -1, 1, 0, 2, Q("27 mm")))
sketch8.addConstraint(Sketcher.Constraint("DistanceX", 1, 2, -1, 1, Q("69.1 mm")))
sketch8.addConstraint(Sketcher.Constraint("DistanceY", 2, 2, 2, 1, Q("13.132 mm")))
sketch8.addConstraint(Sketcher.Constraint("DistanceX", 0, 1, 0, 2, Q("15.3773 mm")))
pocket3 = doc.addObject("PartDesign::Pocket", "Pocket002")
body.addObject(pocket3)
pocket3.Profile = sketch8
pocket3.Length = 19.1
doc.recompute()

fillet = doc.addObject("PartDesign::Fillet", "Fillet")
body.addObject(fillet)
fillet.Base = (pocket3, edges_at(pocket3, [(8, 59.1, -26.5)]))
fillet.Radius = 15
doc.recompute()

chamfer = doc.addObject("PartDesign::Chamfer", "Chamfer")
body.addObject(chamfer)
chamfer.Base = (fillet, edges_at(fillet, [(-51.1, 45.1, -24), (-33.1, 51.6, -24)]))
chamfer.Size = 1

doc.recompute()
